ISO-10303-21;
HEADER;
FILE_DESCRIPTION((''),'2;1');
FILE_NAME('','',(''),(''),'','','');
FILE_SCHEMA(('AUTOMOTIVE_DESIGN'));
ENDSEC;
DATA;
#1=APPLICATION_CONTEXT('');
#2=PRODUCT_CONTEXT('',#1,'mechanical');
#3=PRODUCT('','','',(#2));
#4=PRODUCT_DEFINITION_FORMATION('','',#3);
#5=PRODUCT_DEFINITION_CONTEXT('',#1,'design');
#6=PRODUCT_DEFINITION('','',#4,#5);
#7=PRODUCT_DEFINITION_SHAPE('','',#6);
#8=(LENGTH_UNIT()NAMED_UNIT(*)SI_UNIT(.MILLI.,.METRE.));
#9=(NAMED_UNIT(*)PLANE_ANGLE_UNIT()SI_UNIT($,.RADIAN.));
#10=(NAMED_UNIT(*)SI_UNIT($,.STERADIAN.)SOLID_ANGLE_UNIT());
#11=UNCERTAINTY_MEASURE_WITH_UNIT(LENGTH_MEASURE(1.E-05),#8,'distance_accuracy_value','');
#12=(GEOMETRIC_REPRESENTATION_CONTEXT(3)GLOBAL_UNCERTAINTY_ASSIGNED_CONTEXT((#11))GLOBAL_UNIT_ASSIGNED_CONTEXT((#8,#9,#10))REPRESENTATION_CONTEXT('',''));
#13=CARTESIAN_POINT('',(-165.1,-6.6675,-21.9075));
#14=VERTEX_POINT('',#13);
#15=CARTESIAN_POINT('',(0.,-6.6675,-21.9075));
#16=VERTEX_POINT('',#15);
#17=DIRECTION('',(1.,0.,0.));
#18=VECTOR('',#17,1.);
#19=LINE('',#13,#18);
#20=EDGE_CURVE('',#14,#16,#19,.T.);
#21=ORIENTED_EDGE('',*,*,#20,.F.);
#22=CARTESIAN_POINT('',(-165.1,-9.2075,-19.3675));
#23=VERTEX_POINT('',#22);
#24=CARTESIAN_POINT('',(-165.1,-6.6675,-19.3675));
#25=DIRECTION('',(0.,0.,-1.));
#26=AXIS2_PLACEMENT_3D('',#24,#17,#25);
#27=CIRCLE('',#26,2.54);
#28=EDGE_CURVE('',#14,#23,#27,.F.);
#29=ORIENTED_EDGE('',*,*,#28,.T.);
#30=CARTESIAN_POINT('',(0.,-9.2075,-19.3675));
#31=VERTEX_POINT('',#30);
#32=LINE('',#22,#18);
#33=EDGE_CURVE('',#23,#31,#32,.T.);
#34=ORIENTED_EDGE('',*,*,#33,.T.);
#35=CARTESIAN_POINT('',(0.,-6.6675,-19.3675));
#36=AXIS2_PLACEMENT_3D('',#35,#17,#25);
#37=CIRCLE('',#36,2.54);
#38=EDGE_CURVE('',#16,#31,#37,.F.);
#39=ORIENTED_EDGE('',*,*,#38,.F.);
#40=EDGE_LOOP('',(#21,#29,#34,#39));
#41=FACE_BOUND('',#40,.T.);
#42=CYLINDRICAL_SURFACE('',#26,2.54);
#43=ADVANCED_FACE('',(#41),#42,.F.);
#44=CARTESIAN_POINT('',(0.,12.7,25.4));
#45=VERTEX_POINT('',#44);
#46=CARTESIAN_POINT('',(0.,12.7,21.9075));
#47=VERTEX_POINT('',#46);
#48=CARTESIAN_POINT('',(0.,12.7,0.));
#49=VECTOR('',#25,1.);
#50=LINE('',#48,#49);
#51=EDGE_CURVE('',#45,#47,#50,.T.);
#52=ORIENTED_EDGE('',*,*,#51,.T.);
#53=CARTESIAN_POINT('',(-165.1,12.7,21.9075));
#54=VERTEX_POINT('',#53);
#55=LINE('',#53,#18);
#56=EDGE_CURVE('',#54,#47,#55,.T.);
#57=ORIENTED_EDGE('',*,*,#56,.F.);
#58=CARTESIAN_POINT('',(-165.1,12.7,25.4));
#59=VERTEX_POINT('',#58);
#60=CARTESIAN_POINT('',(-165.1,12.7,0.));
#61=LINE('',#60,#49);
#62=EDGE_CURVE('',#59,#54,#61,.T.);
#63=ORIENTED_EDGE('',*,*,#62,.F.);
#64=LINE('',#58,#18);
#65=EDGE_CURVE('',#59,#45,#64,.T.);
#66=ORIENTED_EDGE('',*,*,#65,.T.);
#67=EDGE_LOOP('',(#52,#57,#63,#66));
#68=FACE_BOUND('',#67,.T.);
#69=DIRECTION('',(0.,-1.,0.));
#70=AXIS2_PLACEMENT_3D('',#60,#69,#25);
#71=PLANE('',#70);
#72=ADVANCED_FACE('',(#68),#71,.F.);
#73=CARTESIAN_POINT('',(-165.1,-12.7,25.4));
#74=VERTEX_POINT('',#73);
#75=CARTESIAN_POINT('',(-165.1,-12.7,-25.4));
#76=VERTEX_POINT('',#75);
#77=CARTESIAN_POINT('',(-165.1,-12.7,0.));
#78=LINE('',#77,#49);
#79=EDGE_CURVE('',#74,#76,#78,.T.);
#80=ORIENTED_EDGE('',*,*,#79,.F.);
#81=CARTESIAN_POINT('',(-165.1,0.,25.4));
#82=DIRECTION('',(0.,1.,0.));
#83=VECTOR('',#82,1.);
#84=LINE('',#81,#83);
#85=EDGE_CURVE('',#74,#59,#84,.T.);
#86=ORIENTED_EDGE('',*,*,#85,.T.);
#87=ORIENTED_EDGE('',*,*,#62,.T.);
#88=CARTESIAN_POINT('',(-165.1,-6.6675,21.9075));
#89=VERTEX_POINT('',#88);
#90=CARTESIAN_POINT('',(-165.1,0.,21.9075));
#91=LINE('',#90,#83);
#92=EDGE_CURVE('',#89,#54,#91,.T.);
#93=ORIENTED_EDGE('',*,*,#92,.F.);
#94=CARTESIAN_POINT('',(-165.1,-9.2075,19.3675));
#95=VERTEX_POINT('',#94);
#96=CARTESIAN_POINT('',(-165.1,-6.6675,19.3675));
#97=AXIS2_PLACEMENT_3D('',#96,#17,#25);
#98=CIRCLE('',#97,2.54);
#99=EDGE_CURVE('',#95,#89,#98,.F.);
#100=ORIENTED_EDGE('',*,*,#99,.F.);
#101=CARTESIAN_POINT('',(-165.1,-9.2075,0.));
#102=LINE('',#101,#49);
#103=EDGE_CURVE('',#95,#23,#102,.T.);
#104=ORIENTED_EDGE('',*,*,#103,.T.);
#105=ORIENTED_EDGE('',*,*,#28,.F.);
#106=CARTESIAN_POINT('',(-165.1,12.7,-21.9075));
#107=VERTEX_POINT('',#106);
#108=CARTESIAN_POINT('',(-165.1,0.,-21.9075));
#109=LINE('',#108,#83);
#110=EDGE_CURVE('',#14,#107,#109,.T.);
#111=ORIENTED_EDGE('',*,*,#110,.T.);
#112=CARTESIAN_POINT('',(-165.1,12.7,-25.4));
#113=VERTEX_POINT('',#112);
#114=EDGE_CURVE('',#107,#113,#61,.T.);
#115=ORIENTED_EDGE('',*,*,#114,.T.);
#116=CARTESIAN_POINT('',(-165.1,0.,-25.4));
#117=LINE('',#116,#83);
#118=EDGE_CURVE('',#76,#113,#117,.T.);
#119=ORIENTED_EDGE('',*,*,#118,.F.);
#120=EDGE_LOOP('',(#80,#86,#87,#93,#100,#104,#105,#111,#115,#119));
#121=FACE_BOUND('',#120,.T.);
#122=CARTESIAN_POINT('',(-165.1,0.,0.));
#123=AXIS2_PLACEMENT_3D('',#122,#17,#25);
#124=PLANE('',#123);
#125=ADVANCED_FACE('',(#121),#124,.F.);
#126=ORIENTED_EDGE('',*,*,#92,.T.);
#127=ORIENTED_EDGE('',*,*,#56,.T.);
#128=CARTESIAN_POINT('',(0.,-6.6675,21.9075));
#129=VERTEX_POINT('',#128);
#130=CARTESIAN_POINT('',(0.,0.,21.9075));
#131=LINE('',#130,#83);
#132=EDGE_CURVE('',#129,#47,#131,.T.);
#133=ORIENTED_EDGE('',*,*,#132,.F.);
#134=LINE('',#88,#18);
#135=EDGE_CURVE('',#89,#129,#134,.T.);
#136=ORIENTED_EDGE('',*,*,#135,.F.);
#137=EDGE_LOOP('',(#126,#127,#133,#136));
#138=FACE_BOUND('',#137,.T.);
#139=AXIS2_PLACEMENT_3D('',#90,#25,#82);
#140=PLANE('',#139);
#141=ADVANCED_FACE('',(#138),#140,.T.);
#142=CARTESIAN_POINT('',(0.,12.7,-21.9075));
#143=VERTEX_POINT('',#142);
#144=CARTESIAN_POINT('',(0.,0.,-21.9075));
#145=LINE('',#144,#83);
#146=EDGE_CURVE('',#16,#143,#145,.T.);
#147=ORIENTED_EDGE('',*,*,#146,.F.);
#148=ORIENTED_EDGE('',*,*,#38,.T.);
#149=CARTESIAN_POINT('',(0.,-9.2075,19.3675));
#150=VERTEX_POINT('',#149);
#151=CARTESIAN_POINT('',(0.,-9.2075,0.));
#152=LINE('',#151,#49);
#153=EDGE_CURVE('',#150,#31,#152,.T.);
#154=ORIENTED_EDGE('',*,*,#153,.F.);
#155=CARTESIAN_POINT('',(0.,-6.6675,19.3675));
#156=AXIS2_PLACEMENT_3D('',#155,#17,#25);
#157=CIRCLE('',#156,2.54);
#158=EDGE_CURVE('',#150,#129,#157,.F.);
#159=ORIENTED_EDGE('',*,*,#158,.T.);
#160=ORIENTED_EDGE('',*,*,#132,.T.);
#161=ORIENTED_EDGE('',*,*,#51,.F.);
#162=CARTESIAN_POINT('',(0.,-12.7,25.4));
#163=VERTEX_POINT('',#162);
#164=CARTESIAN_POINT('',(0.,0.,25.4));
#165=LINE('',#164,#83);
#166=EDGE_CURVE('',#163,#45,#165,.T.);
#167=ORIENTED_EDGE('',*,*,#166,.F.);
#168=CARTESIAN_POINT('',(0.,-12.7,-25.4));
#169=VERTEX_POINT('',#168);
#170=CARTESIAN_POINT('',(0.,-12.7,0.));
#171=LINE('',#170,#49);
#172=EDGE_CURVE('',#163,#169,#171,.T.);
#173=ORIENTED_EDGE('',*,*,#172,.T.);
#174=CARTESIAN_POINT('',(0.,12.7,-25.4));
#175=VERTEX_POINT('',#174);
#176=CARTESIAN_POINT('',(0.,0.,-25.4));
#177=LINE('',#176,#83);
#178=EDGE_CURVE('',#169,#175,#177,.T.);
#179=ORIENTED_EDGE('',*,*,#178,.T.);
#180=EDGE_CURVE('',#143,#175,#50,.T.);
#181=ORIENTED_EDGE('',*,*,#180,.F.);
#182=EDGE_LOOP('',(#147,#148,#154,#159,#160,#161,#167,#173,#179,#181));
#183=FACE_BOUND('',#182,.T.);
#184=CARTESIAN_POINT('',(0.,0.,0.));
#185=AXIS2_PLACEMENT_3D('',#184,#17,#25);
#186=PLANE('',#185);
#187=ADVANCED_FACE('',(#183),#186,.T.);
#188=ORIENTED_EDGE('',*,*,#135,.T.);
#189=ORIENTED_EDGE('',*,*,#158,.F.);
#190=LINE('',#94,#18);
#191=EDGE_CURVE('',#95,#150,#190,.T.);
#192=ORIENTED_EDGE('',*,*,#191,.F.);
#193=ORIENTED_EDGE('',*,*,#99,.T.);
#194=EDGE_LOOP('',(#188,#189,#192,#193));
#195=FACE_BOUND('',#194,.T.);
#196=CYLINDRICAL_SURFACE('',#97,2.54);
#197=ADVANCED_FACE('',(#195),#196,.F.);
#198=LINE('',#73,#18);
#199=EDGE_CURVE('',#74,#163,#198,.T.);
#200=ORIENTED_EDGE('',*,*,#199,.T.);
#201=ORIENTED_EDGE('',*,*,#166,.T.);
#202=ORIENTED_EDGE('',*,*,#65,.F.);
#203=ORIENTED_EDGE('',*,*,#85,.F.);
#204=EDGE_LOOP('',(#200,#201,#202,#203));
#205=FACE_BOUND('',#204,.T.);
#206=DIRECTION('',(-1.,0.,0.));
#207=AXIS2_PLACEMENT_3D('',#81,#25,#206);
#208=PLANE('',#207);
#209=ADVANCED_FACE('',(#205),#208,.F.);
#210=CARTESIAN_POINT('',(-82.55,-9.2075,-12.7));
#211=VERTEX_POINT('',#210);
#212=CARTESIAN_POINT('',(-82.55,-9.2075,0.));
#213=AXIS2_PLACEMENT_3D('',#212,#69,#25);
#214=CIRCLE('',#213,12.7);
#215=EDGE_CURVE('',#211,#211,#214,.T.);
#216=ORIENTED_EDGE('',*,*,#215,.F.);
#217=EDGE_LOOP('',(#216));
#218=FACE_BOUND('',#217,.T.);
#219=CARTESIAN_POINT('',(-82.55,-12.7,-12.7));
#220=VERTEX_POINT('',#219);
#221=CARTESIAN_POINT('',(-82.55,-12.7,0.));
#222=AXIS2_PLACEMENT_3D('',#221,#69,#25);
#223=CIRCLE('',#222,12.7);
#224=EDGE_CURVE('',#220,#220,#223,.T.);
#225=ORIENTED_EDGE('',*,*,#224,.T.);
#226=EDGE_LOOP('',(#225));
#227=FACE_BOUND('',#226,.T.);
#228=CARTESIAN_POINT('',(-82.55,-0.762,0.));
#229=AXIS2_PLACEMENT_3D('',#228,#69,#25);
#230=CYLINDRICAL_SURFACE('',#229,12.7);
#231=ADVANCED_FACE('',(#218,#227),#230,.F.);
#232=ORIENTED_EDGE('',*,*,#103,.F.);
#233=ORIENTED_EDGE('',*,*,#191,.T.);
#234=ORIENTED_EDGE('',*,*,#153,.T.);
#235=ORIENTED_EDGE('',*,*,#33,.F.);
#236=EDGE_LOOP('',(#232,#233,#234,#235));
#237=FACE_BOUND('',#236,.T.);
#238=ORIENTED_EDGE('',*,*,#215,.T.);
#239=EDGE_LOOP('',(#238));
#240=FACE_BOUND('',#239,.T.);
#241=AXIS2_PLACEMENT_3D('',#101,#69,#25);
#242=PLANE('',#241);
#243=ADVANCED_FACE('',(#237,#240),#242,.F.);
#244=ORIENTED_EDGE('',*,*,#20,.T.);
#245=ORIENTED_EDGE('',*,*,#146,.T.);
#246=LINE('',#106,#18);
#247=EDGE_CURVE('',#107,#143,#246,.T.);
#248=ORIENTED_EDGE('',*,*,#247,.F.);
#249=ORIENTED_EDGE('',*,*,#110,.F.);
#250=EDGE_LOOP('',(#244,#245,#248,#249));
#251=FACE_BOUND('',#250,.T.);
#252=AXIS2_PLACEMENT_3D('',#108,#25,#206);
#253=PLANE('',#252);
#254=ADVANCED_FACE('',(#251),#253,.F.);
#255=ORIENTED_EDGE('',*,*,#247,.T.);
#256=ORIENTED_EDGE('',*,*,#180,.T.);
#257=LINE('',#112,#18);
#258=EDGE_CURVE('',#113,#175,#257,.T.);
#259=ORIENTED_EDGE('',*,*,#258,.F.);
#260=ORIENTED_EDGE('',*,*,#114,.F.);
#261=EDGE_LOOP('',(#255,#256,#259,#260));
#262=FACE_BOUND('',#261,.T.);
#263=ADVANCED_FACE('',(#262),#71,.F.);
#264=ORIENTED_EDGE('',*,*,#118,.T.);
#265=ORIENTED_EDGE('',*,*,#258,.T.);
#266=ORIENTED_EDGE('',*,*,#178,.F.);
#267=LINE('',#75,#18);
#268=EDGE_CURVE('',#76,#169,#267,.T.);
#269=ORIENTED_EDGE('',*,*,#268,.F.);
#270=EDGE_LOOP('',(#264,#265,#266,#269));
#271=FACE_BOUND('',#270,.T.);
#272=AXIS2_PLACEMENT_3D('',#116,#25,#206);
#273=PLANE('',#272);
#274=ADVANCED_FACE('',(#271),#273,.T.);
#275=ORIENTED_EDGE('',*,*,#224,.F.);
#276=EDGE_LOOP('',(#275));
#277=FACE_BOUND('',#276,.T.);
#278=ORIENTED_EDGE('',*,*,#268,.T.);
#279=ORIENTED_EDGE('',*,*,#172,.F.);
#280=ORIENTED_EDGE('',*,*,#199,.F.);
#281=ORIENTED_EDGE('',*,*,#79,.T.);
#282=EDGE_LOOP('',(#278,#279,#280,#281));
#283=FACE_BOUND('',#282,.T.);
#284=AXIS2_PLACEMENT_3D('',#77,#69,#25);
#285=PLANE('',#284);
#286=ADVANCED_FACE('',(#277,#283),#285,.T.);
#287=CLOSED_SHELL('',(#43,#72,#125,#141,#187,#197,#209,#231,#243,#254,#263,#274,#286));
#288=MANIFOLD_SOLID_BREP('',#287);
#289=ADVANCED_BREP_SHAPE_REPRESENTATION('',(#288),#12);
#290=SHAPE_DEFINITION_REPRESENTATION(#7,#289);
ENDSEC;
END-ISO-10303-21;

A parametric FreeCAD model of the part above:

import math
import FreeCAD as App
import Part
import Sketcher
Q = App.Units.Quantity

doc = App.newDocument("Part")
params = doc.addObject("Spreadsheet::Sheet", "Params")
for row, (alias, value) in enumerate([
    ("sketch1_radius", "0.1 in"),
    ("sketch1_width", "1 in"),
    ("sketch1_height", "2 in"),
    ("sketch1_height2", "1.525 in"),
    ("pad1_length", "6.5 in"),
    ("sketch2_diameter", "1 in"),
    ("pocket1_length", "0.47 in"),
], start=1):
    params.set(f"A{row}", alias)
    params.set(f"B{row}", "=" + value)
    params.setAlias(f"B{row}", alias)

body = doc.addObject("PartDesign::Body", "Body")

# Sketch on YZ plane
sketch1 = body.newObject("Sketcher::SketchObject", "Sketch")
sketch1.AttachmentSupport = (doc.getObject("YZ_Plane"), [""])
sketch1.MapMode = "FlatFace"
sketch1.addGeometry([
    Part.LineSegment(App.Vector(-6.7, 21.9, 0), App.Vector(12.7, 21.9, 0)),  # 0
    Part.LineSegment(App.Vector(12.7, 21.9, 0), App.Vector(12.7, 25.4, 0)),  # 1
    Part.LineSegment(App.Vector(12.7, 25.4, 0), App.Vector(-12.7, 25.4, 0)),  # 2
    Part.LineSegment(App.Vector(-12.7, 25.4, 0), App.Vector(-12.7, -25.4, 0)),  # 3
    Part.LineSegment(App.Vector(-12.7, -25.4, 0), App.Vector(12.7, -25.4, 0)),  # 4
    Part.LineSegment(App.Vector(12.7, -25.4, 0), App.Vector(12.7, -21.9, 0)),  # 5
    Part.LineSegment(App.Vector(12.7, -21.9, 0), App.Vector(-6.7, -21.9, 0)),  # 6
    Part.ArcOfCircle(Part.Circle(App.Vector(-6.7, -19.4, 0), App.Vector(0, 0, 1), 2.5), math.radians(-180), math.radians(-90)),  # 7
    Part.LineSegment(App.Vector(-9.2, -19.4, 0), App.Vector(-9.2, 19.4, 0)),  # 8
    Part.ArcOfCircle(Part.Circle(App.Vector(-6.7, 19.4, 0), App.Vector(0, 0, 1), 2.5), math.radians(90), math.radians(180)),  # 9
], False)
sketch1.addConstraint([
    Sketcher.Constraint("Coincident", 0, 2, 1, 1),
    Sketcher.Constraint("Coincident", 1, 2, 2, 1),
    Sketcher.Constraint("Coincident", 2, 2, 3, 1),
    Sketcher.Constraint("Coincident", 3, 2, 4, 1),
    Sketcher.Constraint("Coincident", 4, 2, 5, 1),
    Sketcher.Constraint("Coincident", 5, 2, 6, 1),
    Sketcher.Constraint("Tangent", 6, 2, 7, 2),
    Sketcher.Constraint("Tangent", 7, 1, 8, 1),
    Sketcher.Constraint("Tangent", 8, 2, 9, 2),
    Sketcher.Constraint("Tangent", 9, 1, 0, 1),
    Sketcher.Constraint("Horizontal", 0),
    Sketcher.Constraint("Vertical", 1),
    Sketcher.Constraint("Horizontal", 2),
    Sketcher.Constraint("Vertical", 3),
    Sketcher.Constraint("Horizontal", 4),
    Sketcher.Constraint("Vertical", 5),
    Sketcher.Constraint("Horizontal", 6),
    Sketcher.Constraint("Vertical", 8),
    Sketcher.Constraint("Equal", 7, 9),
    Sketcher.Constraint("Symmetric", 1, 2, 3, 2, -1, 1),
    Sketcher.Constraint("Symmetric", 0, 2, 5, 2, -1),
    Sketcher.Constraint("Radius", 7, Q("0.1 in")),
    Sketcher.Constraint("DistanceX", 2, 2, 2, 1, Q("1 in")),
    Sketcher.Constraint("DistanceY", 3, 2, 3, 1, Q("2 in")),
    Sketcher.Constraint("DistanceY", 8, 1, 8, 2, Q("1.525 in")),
    Sketcher.Constraint("DistanceX", 0, 1, 0, 2, Q("0.7625 in")),
])
sketch1.setExpression("Constraints[21]", "Params.sketch1_radius")
sketch1.setExpression("Constraints[22]", "Params.sketch1_width")
sketch1.setExpression("Constraints[23]", "Params.sketch1_height")
sketch1.setExpression("Constraints[24]", "Params.sketch1_height2")
pad1 = body.newObject("PartDesign::Pad", "Pad")
pad1.Profile = sketch1
pad1.setExpression("Length", "Params.pad1_length")
pad1.Reversed = True

# Sketch on XZ plane
sketch2 = body.newObject("Sketcher::SketchObject", "Sketch001")
sketch2.AttachmentSupport = (doc.getObject("XZ_Plane"), [""])
sketch2.MapMode = "FlatFace"
sketch2.AttachmentOffset = App.Placement(App.Vector(0, 0, 0.5 * 25.4), App.Rotation())
sketch2.addGeometry(Part.Circle(App.Vector(-83, 0, 0), App.Vector(0, 0, 1), 13), False)
sketch2.addConstraint([
    Sketcher.Constraint("PointOnObject", 0, 3, -1),
    Sketcher.Constraint("Diameter", 0, Q("1 in")),
    Sketcher.Constraint("DistanceX", 0, 3, -1, 1, Q("3.25 in")),
])
sketch2.setExpression("Constraints[1]", "Params.sketch2_diameter")
pocket1 = body.newObject("PartDesign::Pocket", "Pocket")
pocket1.Profile = sketch2
pocket1.setExpression("Length", "Params.pocket1_length")

doc.recompute()
